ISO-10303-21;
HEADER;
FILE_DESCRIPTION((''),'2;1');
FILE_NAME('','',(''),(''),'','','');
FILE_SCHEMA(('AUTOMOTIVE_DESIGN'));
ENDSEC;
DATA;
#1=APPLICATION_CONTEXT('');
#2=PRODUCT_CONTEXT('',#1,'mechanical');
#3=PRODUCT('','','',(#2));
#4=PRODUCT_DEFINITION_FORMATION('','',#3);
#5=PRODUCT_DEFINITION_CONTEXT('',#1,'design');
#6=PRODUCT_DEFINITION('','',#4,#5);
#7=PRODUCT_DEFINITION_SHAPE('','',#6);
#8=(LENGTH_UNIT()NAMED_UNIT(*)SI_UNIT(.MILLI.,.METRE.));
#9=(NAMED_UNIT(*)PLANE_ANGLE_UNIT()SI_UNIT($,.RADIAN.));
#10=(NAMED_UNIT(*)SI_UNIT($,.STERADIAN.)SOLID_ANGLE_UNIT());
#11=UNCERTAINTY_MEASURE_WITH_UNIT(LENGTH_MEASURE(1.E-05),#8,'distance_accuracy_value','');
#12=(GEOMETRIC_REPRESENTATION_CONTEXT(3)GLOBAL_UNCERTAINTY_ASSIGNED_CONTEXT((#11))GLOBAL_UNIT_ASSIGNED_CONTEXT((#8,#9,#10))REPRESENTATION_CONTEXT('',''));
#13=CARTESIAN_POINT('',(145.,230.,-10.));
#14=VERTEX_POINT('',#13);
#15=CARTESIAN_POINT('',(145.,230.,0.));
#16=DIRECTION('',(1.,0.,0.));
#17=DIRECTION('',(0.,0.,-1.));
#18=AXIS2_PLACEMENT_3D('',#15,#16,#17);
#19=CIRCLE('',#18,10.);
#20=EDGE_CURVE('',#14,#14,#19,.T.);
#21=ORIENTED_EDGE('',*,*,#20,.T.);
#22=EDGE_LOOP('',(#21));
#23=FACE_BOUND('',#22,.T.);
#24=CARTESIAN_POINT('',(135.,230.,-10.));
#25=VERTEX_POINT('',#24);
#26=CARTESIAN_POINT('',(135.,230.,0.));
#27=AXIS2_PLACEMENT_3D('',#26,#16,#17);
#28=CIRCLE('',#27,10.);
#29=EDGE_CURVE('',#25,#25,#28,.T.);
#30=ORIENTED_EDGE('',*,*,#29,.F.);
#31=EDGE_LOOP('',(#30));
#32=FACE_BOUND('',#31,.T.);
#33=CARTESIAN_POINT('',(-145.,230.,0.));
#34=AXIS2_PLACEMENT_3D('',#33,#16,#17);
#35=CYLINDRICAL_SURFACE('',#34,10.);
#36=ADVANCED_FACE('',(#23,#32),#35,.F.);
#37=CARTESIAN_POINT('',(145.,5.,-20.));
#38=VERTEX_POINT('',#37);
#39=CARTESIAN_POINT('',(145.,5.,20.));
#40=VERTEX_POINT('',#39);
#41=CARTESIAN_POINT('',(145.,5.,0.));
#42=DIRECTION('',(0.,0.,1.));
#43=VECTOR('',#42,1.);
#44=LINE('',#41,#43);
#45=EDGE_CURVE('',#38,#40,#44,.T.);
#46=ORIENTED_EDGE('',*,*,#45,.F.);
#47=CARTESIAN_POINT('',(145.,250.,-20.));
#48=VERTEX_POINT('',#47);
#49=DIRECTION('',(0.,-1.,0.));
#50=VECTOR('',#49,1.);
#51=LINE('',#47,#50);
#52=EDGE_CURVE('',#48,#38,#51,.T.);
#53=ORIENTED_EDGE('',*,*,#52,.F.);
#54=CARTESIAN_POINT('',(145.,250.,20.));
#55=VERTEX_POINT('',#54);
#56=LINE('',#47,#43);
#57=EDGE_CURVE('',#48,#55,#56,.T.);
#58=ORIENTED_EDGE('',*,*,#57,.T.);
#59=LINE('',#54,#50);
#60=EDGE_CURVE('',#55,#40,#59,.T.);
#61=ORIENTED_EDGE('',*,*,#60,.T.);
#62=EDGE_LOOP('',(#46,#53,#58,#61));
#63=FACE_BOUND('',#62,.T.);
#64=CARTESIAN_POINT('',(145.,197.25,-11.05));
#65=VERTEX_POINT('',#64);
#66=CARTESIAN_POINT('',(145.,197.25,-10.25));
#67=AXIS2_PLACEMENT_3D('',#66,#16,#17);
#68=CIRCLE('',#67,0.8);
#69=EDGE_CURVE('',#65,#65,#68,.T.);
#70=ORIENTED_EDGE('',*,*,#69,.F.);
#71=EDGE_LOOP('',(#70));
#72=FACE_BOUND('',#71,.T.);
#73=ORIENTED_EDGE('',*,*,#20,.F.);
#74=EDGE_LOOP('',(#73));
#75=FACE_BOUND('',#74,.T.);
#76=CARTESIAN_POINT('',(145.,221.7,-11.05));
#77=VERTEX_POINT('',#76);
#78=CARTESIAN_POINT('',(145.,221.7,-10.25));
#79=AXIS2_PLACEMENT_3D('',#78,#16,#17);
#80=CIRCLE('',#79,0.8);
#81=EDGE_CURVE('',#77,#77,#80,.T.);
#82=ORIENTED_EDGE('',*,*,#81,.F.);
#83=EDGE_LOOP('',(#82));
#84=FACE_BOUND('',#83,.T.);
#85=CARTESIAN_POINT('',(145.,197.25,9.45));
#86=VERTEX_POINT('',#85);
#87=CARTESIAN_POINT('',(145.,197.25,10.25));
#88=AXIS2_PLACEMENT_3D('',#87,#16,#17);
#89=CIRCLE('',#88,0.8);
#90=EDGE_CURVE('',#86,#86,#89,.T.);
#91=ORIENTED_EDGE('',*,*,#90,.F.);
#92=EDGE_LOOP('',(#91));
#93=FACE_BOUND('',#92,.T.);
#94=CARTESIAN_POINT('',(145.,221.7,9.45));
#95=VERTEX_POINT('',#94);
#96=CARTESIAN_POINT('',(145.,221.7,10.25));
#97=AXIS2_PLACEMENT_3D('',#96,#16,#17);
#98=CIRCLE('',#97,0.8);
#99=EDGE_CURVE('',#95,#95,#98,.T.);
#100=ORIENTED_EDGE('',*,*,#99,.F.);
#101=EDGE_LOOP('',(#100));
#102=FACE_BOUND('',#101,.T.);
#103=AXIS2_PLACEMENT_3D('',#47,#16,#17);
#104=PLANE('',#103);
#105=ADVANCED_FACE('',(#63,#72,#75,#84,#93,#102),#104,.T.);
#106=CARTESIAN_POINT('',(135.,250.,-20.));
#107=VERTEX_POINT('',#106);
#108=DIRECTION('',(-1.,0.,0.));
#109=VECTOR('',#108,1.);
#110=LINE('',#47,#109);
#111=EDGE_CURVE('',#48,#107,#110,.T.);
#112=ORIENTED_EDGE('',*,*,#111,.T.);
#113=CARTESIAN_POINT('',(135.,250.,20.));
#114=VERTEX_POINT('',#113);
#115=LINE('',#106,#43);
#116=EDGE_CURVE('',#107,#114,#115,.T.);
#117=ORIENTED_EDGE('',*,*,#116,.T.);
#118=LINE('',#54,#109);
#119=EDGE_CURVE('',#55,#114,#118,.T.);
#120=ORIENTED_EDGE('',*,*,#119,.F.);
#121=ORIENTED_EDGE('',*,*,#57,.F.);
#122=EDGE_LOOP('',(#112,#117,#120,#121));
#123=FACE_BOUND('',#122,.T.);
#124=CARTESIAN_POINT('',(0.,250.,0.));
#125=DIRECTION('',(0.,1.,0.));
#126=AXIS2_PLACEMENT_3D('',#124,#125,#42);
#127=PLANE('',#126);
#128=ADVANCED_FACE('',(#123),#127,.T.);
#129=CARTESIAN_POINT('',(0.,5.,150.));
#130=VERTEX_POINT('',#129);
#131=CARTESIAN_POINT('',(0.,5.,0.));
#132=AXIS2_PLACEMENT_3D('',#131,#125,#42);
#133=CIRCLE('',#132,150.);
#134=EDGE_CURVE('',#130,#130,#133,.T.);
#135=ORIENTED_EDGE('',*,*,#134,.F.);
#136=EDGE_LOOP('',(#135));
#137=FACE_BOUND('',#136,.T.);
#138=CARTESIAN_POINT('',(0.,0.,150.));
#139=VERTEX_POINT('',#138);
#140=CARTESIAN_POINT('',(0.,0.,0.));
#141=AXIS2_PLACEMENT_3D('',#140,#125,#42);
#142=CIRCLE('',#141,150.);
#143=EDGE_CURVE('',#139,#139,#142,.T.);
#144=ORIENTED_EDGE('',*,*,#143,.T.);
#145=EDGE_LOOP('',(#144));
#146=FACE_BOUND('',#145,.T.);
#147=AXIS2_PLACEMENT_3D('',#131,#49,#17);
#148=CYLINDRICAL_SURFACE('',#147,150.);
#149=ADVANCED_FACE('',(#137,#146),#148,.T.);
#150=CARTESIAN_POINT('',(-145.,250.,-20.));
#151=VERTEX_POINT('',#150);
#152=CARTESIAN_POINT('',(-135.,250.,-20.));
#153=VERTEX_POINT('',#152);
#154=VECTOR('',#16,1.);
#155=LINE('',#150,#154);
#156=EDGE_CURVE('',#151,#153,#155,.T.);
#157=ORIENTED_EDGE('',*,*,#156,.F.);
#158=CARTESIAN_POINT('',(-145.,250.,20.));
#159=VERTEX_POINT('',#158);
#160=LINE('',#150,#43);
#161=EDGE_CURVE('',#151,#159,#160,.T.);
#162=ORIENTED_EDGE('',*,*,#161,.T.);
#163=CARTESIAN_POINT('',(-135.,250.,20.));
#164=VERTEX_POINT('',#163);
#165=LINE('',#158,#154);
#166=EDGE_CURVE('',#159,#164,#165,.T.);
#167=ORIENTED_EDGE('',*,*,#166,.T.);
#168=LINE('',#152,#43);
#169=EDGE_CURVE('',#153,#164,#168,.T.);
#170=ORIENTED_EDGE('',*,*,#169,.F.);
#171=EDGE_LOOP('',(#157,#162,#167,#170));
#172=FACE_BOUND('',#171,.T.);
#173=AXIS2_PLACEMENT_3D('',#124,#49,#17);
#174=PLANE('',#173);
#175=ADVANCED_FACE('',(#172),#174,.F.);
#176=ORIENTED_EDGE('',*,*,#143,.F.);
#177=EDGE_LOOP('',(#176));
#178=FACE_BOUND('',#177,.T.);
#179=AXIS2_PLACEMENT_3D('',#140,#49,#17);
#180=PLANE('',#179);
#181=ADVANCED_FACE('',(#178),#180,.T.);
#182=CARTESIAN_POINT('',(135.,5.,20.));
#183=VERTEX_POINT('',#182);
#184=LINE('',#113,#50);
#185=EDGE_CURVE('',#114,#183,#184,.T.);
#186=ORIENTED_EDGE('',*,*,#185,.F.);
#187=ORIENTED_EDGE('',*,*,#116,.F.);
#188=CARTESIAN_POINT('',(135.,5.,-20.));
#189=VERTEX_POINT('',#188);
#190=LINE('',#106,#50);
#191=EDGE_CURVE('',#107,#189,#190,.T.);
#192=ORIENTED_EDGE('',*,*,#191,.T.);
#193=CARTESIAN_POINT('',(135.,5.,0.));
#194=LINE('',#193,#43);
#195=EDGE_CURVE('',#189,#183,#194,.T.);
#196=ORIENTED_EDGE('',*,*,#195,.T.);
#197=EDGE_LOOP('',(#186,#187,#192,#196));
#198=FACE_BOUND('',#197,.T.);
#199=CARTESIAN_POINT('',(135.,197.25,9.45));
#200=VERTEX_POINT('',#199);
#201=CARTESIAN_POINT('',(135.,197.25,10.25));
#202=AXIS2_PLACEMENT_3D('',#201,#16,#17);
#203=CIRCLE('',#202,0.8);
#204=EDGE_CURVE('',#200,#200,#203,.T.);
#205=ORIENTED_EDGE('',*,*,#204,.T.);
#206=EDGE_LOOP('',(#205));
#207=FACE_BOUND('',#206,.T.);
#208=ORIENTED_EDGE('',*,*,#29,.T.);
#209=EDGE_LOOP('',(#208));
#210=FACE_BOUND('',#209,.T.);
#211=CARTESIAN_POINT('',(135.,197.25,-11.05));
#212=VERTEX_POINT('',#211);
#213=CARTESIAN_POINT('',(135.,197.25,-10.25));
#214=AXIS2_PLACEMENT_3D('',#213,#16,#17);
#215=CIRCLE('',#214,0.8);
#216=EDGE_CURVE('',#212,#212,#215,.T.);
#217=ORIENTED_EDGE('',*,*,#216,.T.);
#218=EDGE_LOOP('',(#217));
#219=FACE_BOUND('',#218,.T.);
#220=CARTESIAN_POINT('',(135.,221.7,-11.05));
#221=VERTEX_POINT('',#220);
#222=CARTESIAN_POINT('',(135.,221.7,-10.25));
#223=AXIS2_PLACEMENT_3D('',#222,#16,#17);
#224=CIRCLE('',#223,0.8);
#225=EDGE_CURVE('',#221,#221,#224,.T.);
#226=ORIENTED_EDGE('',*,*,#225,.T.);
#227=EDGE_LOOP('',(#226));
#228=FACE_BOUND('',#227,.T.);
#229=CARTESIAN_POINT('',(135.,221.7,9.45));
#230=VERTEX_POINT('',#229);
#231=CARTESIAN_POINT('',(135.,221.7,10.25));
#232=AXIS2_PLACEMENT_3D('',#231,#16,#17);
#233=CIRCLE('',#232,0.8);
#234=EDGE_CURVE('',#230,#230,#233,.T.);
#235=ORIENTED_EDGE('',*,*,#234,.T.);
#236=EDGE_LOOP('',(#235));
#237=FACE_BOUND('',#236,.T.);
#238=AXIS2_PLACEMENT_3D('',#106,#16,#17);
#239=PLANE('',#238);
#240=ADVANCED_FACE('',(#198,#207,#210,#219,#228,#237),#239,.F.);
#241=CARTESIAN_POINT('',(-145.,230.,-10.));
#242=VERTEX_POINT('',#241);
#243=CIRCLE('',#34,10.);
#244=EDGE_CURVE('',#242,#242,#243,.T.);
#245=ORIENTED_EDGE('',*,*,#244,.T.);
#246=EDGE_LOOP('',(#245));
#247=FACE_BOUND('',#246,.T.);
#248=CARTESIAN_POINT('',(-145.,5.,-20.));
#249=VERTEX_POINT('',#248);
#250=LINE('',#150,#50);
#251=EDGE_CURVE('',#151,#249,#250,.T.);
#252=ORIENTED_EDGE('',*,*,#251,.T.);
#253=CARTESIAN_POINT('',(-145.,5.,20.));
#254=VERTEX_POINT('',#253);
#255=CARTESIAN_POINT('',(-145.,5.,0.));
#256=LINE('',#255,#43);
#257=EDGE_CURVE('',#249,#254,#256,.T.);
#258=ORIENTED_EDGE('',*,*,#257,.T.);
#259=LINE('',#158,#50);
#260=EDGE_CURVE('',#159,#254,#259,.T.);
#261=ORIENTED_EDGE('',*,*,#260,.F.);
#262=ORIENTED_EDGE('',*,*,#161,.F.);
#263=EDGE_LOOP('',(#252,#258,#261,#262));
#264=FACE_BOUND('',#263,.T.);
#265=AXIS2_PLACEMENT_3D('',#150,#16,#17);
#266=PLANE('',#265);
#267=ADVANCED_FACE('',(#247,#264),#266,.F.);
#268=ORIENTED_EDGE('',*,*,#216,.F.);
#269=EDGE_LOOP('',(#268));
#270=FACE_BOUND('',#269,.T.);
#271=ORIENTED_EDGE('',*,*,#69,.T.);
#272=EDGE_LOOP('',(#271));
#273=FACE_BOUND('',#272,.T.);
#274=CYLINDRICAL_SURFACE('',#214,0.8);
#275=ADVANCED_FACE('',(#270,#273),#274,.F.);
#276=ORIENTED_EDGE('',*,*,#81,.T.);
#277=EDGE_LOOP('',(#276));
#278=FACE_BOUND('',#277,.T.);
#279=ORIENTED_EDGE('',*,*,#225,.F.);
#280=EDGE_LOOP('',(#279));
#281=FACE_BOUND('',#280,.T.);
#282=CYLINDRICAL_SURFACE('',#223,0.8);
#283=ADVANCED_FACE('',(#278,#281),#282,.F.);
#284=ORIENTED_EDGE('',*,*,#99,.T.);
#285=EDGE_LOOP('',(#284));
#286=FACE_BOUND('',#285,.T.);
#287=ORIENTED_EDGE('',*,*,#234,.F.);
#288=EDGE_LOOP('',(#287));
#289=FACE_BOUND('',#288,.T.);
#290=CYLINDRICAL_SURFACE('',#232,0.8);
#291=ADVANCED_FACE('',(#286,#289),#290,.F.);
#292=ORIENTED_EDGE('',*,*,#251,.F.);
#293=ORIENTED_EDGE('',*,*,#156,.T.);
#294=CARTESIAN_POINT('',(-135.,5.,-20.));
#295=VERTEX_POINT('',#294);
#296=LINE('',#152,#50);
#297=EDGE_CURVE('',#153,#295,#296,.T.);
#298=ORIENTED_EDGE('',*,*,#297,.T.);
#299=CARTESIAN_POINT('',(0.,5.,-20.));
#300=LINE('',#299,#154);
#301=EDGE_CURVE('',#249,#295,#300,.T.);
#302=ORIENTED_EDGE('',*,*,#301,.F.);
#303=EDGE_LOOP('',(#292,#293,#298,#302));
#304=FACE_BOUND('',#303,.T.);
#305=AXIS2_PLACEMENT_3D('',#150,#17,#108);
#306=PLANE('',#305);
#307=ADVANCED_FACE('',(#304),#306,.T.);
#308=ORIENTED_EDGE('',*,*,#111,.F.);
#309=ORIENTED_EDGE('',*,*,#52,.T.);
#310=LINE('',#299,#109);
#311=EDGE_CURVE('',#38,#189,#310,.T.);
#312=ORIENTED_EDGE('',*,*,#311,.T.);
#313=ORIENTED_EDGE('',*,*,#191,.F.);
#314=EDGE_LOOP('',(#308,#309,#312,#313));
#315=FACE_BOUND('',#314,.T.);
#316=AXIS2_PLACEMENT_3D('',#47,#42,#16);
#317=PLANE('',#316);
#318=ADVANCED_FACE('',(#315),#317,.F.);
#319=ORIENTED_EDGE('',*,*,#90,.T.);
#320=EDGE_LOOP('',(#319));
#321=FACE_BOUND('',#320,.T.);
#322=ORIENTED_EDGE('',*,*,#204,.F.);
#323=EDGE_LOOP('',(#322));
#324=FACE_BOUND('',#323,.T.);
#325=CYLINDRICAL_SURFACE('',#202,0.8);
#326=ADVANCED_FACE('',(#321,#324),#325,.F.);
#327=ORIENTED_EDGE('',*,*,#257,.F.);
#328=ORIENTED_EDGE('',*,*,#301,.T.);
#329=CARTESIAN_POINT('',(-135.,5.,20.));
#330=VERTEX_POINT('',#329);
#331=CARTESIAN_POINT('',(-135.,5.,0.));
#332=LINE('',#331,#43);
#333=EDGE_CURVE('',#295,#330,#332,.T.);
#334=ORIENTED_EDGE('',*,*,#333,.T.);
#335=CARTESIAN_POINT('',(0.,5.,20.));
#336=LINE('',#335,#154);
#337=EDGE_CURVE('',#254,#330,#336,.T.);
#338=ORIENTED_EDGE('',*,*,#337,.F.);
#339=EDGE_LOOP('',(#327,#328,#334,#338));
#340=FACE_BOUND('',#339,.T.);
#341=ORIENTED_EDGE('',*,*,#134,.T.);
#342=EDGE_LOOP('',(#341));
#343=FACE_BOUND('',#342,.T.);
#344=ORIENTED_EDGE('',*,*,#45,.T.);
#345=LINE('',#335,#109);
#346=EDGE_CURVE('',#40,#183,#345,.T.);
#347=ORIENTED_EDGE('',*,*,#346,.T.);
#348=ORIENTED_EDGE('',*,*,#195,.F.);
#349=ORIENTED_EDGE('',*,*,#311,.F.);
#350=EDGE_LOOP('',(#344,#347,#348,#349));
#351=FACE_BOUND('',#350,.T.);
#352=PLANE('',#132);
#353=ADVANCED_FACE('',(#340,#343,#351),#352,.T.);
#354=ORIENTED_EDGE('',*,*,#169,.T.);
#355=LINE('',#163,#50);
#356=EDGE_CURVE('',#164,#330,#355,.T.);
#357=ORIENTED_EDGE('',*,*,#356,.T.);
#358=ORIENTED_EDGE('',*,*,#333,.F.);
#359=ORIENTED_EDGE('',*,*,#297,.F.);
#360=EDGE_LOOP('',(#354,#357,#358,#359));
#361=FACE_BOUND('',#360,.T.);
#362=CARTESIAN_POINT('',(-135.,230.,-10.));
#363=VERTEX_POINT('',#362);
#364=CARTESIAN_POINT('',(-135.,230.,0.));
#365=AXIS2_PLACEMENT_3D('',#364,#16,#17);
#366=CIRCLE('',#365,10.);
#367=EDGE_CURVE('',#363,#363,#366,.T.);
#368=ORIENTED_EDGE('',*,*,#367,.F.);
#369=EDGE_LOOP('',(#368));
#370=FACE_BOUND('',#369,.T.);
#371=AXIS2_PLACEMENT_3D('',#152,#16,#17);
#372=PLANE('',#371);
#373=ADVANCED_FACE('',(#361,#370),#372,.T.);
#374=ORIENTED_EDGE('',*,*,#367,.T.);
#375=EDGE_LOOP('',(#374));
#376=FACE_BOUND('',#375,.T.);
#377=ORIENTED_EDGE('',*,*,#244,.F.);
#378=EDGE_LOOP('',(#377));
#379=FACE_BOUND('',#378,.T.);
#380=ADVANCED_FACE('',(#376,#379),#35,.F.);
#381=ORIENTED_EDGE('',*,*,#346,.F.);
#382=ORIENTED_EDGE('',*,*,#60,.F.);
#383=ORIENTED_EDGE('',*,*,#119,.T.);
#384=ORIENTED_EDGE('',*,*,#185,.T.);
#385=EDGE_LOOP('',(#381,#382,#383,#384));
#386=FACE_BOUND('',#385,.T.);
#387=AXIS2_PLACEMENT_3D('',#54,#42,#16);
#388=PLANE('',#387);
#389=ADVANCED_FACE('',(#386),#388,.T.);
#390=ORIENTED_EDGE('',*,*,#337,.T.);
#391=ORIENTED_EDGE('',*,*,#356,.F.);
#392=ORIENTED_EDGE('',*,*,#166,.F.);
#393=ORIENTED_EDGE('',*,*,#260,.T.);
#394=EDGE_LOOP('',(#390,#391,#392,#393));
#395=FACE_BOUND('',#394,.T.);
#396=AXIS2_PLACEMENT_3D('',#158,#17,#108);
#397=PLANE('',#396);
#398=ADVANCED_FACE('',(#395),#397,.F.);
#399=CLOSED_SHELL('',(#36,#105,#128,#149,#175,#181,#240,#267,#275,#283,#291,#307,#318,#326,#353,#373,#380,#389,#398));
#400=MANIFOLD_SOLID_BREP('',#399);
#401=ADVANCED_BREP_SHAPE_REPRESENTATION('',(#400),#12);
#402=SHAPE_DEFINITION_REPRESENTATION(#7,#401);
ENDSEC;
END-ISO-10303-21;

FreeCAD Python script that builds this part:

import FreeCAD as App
import Part
import Sketcher
Q = App.Units.Quantity

doc = App.newDocument("Part")
params = doc.addObject("Spreadsheet::Sheet", "Params")
for row, (alias, value) in enumerate([
    ("sketch1_width", "10 mm"),
    ("sketch1_height", "40 mm"),
    ("pad1_length", "250 mm"),
    ("sketch2_width", "10 mm"),
    ("sketch2_height", "40 mm"),
    ("pad2_length", "250 mm"),
    ("sketch3_diameter", "300 mm"),
    ("pad3_length", "5 mm"),
    ("sketch4_diameter", "20 mm"),
    ("pocket1_length", "290 mm"),
    ("sketch5_diameter", "1.6 mm"),
    ("pocket2_length", "10 mm"),
], start=1):
    params.set(f"A{row}", alias)
    params.set(f"B{row}", "=" + value)
    params.setAlias(f"B{row}", alias)

body = doc.addObject("PartDesign::Body", "Body")

# Sketch on XZ plane
sketch1 = doc.addObject("Sketcher::SketchObject", "Sketch")
body.addObject(sketch1)
sketch1.AttachmentSupport = (doc.XZ_Plane, [""])
sketch1.MapMode = "FlatFace"
sketch1.addGeometry([
    Part.LineSegment(App.Vector(135, -20, 0), App.Vector(135, 20, 0)),
    Part.LineSegment(App.Vector(135, 20, 0), App.Vector(145, 20, 0)),
    Part.LineSegment(App.Vector(145, 20, 0), App.Vector(145, -20, 0)),
    Part.LineSegment(App.Vector(145, -20, 0), App.Vector(135, -20, 0)),
], False)
sketch1.addConstraint([
    Sketcher.Constraint("Coincident", 0, 2, 1, 1),
    Sketcher.Constraint("Coincident", 1, 2, 2, 1),
    Sketcher.Constraint("Coincident", 2, 2, 3, 1),
    Sketcher.Constraint("Coincident", 3, 2, 0, 1),
    Sketcher.Constraint("Vertical", 0),
    Sketcher.Constraint("Horizontal", 1),
    Sketcher.Constraint("Vertical", 2),
    Sketcher.Constraint("Horizontal", 3),
    Sketcher.Constraint("DistanceX", 1, 1, 1, 2, Q("10 mm")),
    Sketcher.Constraint("DistanceY", 0, 1, 0, 2, Q("40 mm")),
    Sketcher.Constraint("DistanceX", -1, 1, 0, 2, Q("135 mm")),
    Sketcher.Constraint("DistanceY", -1, 1, 0, 2, Q("20 mm")),
])
sketch1.setExpression("Constraints[8]", "Params.sketch1_width")
sketch1.setExpression("Constraints[9]", "Params.sketch1_height")
pad1 = doc.addObject("PartDesign::Pad", "Pad")
body.addObject(pad1)
pad1.Profile = sketch1
pad1.setExpression("Length", "Params.pad1_length")
pad1.Reversed = True
body2 = doc.addObject("PartDesign::Body", "Body001")

# Sketch on XZ plane
sketch2 = doc.addObject("Sketcher::SketchObject", "Sketch001")
body2.addObject(sketch2)
sketch2.AttachmentSupport = (doc.getObject("XZ_Plane001"), [""])
sketch2.MapMode = "FlatFace"
sketch2.addGeometry([
    Part.LineSegment(App.Vector(-145, -20, 0), App.Vector(-145, 20, 0)),
    Part.LineSegment(App.Vector(-145, 20, 0), App.Vector(-135, 20, 0)),
    Part.LineSegment(App.Vector(-135, 20, 0), App.Vector(-135, -20, 0)),
    Part.LineSegment(App.Vector(-135, -20, 0), App.Vector(-145, -20, 0)),
], False)
sketch2.addConstraint([
    Sketcher.Constraint("Coincident", 0, 2, 1, 1),
    Sketcher.Constraint("Coincident", 1, 2, 2, 1),
    Sketcher.Constraint("Coincident", 2, 2, 3, 1),
    Sketcher.Constraint("Coincident", 3, 2, 0, 1),
    Sketcher.Constraint("Vertical", 0),
    Sketcher.Constraint("Horizontal", 1),
    Sketcher.Constraint("Vertical", 2),
    Sketcher.Constraint("Horizontal", 3),
    Sketcher.Constraint("DistanceX", 1, 1, 1, 2, Q("10 mm")),
    Sketcher.Constraint("DistanceY", 0, 1, 0, 2, Q("40 mm")),
    Sketcher.Constraint("DistanceX", 0, 2, -1, 1, Q("145 mm")),
    Sketcher.Constraint("DistanceY", -1, 1, 0, 2, Q("20 mm")),
])
sketch2.setExpression("Constraints[8]", "Params.sketch2_width")
sketch2.setExpression("Constraints[9]", "Params.sketch2_height")
pad2 = doc.addObject("PartDesign::Pad", "Pad001")
body2.addObject(pad2)
pad2.Profile = sketch2
pad2.setExpression("Length", "Params.pad2_length")
pad2.Reversed = True
body.AllowCompound = True
doc.recompute()

boolean = doc.addObject("PartDesign::Boolean", "Boolean")
body.addObject(boolean)
boolean.Type = "Fuse"
boolean.addObjects([body2])

# Sketch on XZ plane
sketch3 = doc.addObject("Sketcher::SketchObject", "Sketch002")
body.addObject(sketch3)
sketch3.AttachmentSupport = (doc.XZ_Plane, [""])
sketch3.MapMode = "FlatFace"
sketch3.addGeometry(Part.Circle(App.Vector(0, 0, 0), App.Vector(0, 0, 1), 150), False)
sketch3.addConstraint([
    Sketcher.Constraint("Coincident", 0, 3, -1, 1),
    Sketcher.Constraint("Diameter", 0, Q("300 mm")),
])
sketch3.setExpression("Constraints[1]", "Params.sketch3_diameter")
pad3 = doc.addObject("PartDesign::Pad", "Pad002")
body.addObject(pad3)
pad3.Profile = sketch3
pad3.setExpression("Length", "Params.pad3_length")
pad3.Reversed = True

# Sketch on YZ plane
sketch4 = doc.addObject("Sketcher::SketchObject", "Sketch003")
body.addObject(sketch4)
sketch4.AttachmentSupport = (doc.YZ_Plane, [""])
sketch4.MapMode = "FlatFace"
sketch4.AttachmentOffset = App.Placement(App.Vector(0, 0, 145), App.Rotation())
sketch4.addGeometry(Part.Circle(App.Vector(230, 0, 0), App.Vector(0, 0, 1), 10), False)
sketch4.addConstraint([
    Sketcher.Constraint("PointOnObject", 0, 3, -1),
    Sketcher.Constraint("Diameter", 0, Q("20 mm")),
    Sketcher.Constraint("DistanceX", -1, 1, 0, 3, Q("230 mm")),
])
sketch4.setExpression("Constraints[1]", "Params.sketch4_diameter")
pocket1 = doc.addObject("PartDesign::Pocket", "Pocket")
body.addObject(pocket1)
pocket1.Profile = sketch4
pocket1.setExpression("Length", "Params.pocket1_length")

# Sketch on YZ plane
sketch5 = doc.addObject("Sketcher::SketchObject", "Sketch004")
body.addObject(sketch5)
sketch5.AttachmentSupport = (doc.YZ_Plane, [""])
sketch5.MapMode = "FlatFace"
sketch5.AttachmentOffset = App.Placement(App.Vector(0, 0, 145), App.Rotation())
sketch5.addGeometry([
    Part.Circle(App.Vector(221.7, 10.2, 0), App.Vector(0, 0, 1), 0.8),
    Part.Circle(App.Vector(221.7, -10.2, 0), App.Vector(0, 0, 1), 0.8),
    Part.Circle(App.Vector(197.2, 10.2, 0), App.Vector(0, 0, 1), 0.8),
    Part.Circle(App.Vector(197.2, -10.2, 0), App.Vector(0, 0, 1), 0.8),
], False)
sketch5.addConstraint([
    Sketcher.Constraint("Equal", 0, 1),
    Sketcher.Constraint("Equal", 1, 2),
    Sketcher.Constraint("Equal", 2, 3),
    Sketcher.Constraint("Symmetric", 0, 3, 1, 3, -1),
    Sketcher.Constraint("Symmetric", 2, 3, 3, 3, -1),
    Sketcher.Constraint("Horizontal", 0, 3, 2, 3),
    Sketcher.Constraint("Diameter", 0, Q("1.6 mm")),
    Sketcher.Constraint("DistanceX", -1, 1, 0, 3, Q("221.7 mm")),
    Sketcher.Constraint("DistanceY", 1, 3, 0, 3, Q("20.5 mm")),
    Sketcher.Constraint("DistanceX", -1, 1, 2, 3, Q("197.25 mm")),
])
sketch5.setExpression("Constraints[6]", "Params.sketch5_diameter")
pocket2 = doc.addObject("PartDesign::Pocket", "Pocket001")
body.addObject(pocket2)
pocket2.Profile = sketch5
pocket2.setExpression("Length", "Params.pocket2_length")

doc.recompute()
